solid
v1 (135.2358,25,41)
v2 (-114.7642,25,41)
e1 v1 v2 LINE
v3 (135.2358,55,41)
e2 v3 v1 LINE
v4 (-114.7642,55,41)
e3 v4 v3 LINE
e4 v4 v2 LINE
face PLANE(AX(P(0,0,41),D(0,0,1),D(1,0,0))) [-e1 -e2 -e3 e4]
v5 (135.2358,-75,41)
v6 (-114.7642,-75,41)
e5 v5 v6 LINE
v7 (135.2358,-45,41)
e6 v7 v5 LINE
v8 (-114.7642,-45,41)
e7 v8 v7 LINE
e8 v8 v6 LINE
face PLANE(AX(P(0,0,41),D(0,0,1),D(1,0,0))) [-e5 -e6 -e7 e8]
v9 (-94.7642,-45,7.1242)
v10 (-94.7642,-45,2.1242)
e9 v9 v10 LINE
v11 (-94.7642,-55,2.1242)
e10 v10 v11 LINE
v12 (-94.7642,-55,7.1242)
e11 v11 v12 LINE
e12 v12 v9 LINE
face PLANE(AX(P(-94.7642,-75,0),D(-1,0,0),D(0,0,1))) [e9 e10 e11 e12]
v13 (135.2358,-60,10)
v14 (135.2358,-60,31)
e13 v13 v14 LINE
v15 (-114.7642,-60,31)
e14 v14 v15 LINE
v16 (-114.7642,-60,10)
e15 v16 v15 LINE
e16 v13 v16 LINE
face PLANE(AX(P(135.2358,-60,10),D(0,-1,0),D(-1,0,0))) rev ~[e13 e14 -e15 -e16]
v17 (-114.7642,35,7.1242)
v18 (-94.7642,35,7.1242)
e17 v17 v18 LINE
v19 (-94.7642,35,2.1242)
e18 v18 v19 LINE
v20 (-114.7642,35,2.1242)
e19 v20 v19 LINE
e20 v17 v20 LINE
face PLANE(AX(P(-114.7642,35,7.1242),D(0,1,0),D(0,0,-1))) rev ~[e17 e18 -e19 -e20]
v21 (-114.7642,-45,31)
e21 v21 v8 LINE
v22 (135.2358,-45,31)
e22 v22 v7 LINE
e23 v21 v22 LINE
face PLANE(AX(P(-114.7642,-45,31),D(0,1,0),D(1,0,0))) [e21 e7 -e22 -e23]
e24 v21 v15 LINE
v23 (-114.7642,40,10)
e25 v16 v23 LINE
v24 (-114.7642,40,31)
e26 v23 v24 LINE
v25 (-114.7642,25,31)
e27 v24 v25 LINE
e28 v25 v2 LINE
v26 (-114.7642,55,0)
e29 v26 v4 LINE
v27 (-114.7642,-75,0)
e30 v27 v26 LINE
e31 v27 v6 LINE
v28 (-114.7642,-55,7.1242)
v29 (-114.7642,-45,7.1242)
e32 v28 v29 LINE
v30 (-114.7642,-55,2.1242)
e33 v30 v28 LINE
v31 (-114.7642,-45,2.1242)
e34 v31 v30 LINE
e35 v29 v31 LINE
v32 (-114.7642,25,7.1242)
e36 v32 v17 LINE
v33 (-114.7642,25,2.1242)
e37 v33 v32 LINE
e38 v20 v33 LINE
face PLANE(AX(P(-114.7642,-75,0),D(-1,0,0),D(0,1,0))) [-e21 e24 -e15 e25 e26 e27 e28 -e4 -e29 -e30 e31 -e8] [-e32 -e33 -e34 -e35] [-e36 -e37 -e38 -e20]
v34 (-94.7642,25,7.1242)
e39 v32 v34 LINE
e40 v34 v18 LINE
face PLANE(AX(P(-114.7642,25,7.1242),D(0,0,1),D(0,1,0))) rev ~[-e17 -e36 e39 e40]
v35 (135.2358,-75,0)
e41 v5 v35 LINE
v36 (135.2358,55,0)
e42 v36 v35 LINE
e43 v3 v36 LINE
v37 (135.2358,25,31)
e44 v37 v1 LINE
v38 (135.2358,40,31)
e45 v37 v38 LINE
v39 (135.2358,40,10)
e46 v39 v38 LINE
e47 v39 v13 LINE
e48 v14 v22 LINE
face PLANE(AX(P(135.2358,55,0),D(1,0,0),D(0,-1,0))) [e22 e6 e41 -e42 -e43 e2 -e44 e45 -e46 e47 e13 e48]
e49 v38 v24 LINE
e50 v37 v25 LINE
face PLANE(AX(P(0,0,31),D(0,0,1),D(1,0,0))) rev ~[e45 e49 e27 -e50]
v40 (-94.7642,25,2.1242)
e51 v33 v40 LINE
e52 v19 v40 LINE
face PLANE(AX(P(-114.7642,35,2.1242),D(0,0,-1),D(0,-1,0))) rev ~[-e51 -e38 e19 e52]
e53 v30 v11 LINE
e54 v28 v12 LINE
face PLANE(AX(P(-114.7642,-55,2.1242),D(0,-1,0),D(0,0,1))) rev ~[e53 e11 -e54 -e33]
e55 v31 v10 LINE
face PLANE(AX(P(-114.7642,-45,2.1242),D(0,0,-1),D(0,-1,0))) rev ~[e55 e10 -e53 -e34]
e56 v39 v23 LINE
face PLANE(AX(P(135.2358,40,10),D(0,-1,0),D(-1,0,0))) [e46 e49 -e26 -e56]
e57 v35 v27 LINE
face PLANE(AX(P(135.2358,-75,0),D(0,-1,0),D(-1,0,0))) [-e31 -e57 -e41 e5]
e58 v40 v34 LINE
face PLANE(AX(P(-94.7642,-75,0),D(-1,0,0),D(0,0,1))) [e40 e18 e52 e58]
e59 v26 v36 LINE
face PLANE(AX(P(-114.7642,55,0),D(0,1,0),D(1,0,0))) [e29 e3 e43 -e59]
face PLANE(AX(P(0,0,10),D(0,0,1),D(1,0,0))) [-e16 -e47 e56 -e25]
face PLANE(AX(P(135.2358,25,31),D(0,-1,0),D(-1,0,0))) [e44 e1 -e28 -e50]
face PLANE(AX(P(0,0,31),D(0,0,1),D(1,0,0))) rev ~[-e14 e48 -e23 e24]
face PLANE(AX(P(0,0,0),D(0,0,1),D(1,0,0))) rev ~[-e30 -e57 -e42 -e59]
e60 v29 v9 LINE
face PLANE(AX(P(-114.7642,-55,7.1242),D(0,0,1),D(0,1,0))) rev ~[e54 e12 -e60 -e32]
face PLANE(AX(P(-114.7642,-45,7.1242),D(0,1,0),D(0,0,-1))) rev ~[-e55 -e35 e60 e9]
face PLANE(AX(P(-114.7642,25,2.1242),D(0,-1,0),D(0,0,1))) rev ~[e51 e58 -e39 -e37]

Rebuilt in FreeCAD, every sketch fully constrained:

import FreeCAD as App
import Part
import Sketcher
from FreeCAD import Vector
Q = App.Units.Quantity

doc = App.newDocument("Part")
body = doc.addObject("PartDesign::Body", "Body")

sketch1 = doc.addObject("Sketcher::SketchObject", "Sketch")
body.addObject(sketch1)
sketch1.AttachmentSupport = (doc.XY_Plane, [""])
sketch1.MapMode = "FlatFace"
sketch1.addGeometry([
    Part.LineSegment(Vector(135.2358, 55, 0), Vector(-114.7642, 55, 0)),
    Part.LineSegment(Vector(-114.7642, 55, 0), Vector(-114.7642, -75, 0)),
    Part.LineSegment(Vector(-114.7642, -75, 0), Vector(135.2358, -75, 0)),
    Part.LineSegment(Vector(135.2358, -75, 0), Vector(135.2358, 55, 0)),
], False)
sketch1.addConstraint([
    Sketcher.Constraint("Coincident", 0, 2, 1, 1),
    Sketcher.Constraint("Coincident", 1, 2, 2, 1),
    Sketcher.Constraint("Coincident", 2, 2, 3, 1),
    Sketcher.Constraint("Coincident", 3, 2, 0, 1),
    Sketcher.Constraint("Horizontal", 0),
    Sketcher.Constraint("Vertical", 1),
    Sketcher.Constraint("Horizontal", 2),
    Sketcher.Constraint("Vertical", 3),
    Sketcher.Constraint("DistanceX", 0, 2, 0, 1, Q("250 mm")),
    Sketcher.Constraint("DistanceY", 1, 2, 1, 1, Q("130 mm")),
    Sketcher.Constraint("DistanceY", -1, 1, 0, 2, Q("55 mm")),
    Sketcher.Constraint("DistanceX", 0, 2, -1, 1, Q("114.7642 mm")),
])
pad1 = doc.addObject("PartDesign::Pad", "Pad")
body.addObject(pad1)
pad1.Profile = sketch1
pad1.Length = 10

sketch2 = doc.addObject("Sketcher::SketchObject", "Sketch001")
body.addObject(sketch2)
sketch2.AttachmentSupport = (doc.XY_Plane, [""])
sketch2.MapMode = "FlatFace"
sketch2.AttachmentOffset = App.Placement(Vector(0, 0, 10), App.Rotation())
sketch2.addGeometry([
    Part.LineSegment(Vector(135.2358, 40, 0), Vector(135.2358, 55, 0)),
    Part.LineSegment(Vector(135.2358, 55, 0), Vector(-114.7642, 55, 0)),
    Part.LineSegment(Vector(-114.7642, 55, 0), Vector(-114.7642, 40, 0)),
    Part.LineSegment(Vector(-114.7642, 40, 0), Vector(135.2358, 40, 0)),
    Part.LineSegment(Vector(135.2358, -75, 0), Vector(135.2358, -60, 0)),
    Part.LineSegment(Vector(135.2358, -60, 0), Vector(-114.7642, -60, 0)),
    Part.LineSegment(Vector(-114.7642, -60, 0), Vector(-114.7642, -75, 0)),
    Part.LineSegment(Vector(-114.7642, -75, 0), Vector(135.2358, -75, 0)),
], False)
sketch2.addConstraint([
    Sketcher.Constraint("Coincident", 0, 2, 1, 1),
    Sketcher.Constraint("Coincident", 1, 2, 2, 1),
    Sketcher.Constraint("Coincident", 2, 2, 3, 1),
    Sketcher.Constraint("Coincident", 3, 2, 0, 1),
    Sketcher.Constraint("Coincident", 4, 2, 5, 1),
    Sketcher.Constraint("Coincident", 5, 2, 6, 1),
    Sketcher.Constraint("Coincident", 6, 2, 7, 1),
    Sketcher.Constraint("Coincident", 7, 2, 4, 1),
    Sketcher.Constraint("Vertical", 0),
    Sketcher.Constraint("Horizontal", 1),
    Sketcher.Constraint("Vertical", 2),
    Sketcher.Constraint("Horizontal", 3),
    Sketcher.Constraint("Vertical", 4),
    Sketcher.Constraint("Horizontal", 5),
    Sketcher.Constraint("Vertical", 6),
    Sketcher.Constraint("Horizontal", 7),
    Sketcher.Constraint("Vertical", 3, 2, 4, 2),
    Sketcher.Constraint("Vertical", 2, 2, 5, 2),
    Sketcher.Constraint("Equal", 2, 4),
    Sketcher.Constraint("DistanceY", 0, 1, 0, 2, Q("15 mm")),
    Sketcher.Constraint("DistanceX", 1, 2, 1, 1, Q("250 mm")),
    Sketcher.Constraint("DistanceY", -1, 1, 0, 2, Q("55 mm")),
    Sketcher.Constraint("DistanceY", 4, 2, -1, 1, Q("60 mm")),
    Sketcher.Constraint("DistanceX", -1, 1, 0, 2, Q("135.2358 mm")),
])
pad2 = doc.addObject("PartDesign::Pad", "Pad001")
body.addObject(pad2)
pad2.Profile = sketch2
pad2.Length = 21

sketch3 = doc.addObject("Sketcher::SketchObject", "Sketch002")
body.addObject(sketch3)
sketch3.AttachmentSupport = (doc.XY_Plane, [""])
sketch3.MapMode = "FlatFace"
sketch3.AttachmentOffset = App.Placement(Vector(0, 0, 31), App.Rotation())
sketch3.addGeometry([
    Part.LineSegment(Vector(135.2358, 55, 0), Vector(-114.7642, 55, 0)),
    Part.LineSegment(Vector(-114.7642, 55, 0), Vector(-114.7642, 25, 0)),
    Part.LineSegment(Vector(-114.7642, 25, 0), Vector(135.2358, 25, 0)),
    Part.LineSegment(Vector(135.2358, 25, 0), Vector(135.2358, 55, 0)),
    Part.LineSegment(Vector(135.2358, -45, 0), Vector(-114.7642, -45, 0)),
    Part.LineSegment(Vector(-114.7642, -45, 0), Vector(-114.7642, -75, 0)),
    Part.LineSegment(Vector(-114.7642, -75, 0), Vector(135.2358, -75, 0)),
    Part.LineSegment(Vector(135.2358, -75, 0), Vector(135.2358, -45, 0)),
], False)
sketch3.addConstraint([
    Sketcher.Constraint("Coincident", 0, 2, 1, 1),
    Sketcher.Constraint("Coincident", 1, 2, 2, 1),
    Sketcher.Constraint("Coincident", 2, 2, 3, 1),
    Sketcher.Constraint("Coincident", 3, 2, 0, 1),
    Sketcher.Constraint("Coincident", 4, 2, 5, 1),
    Sketcher.Constraint("Coincident", 5, 2, 6, 1),
    Sketcher.Constraint("Coincident", 6, 2, 7, 1),
    Sketcher.Constraint("Coincident", 7, 2, 4, 1),
    Sketcher.Constraint("Horizontal", 0),
    Sketcher.Constraint("Vertical", 1),
    Sketcher.Constraint("Horizontal", 2),
    Sketcher.Constraint("Vertical", 3),
    Sketcher.Constraint("Horizontal", 4),
    Sketcher.Constraint("Vertical", 5),
    Sketcher.Constraint("Horizontal", 6),
    Sketcher.Constraint("Vertical", 7),
    Sketcher.Constraint("Vertical", 1, 2, 4, 2),
    Sketcher.Constraint("Vertical", 3, 2, 6, 2),
    Sketcher.Constraint("Equal", 3, 5),
    Sketcher.Constraint("DistanceY", 1, 2, 1, 1, Q("30 mm")),
    Sketcher.Constraint("DistanceX", 0, 2, 0, 1, Q("250 mm")),
    Sketcher.Constraint("DistanceY", -1, 1, 0, 2, Q("55 mm")),
    Sketcher.Constraint("DistanceY", 4, 2, -1, 1, Q("45 mm")),
    Sketcher.Constraint("DistanceX", 0, 2, -1, 1, Q("114.7642 mm")),
])
pad3 = doc.addObject("PartDesign::Pad", "Pad002")
body.addObject(pad3)
pad3.Profile = sketch3
pad3.Length = 10

sketch4 = doc.addObject("Sketcher::SketchObject", "Sketch003")
body.addObject(sketch4)
sketch4.AttachmentSupport = (doc.YZ_Plane, [""])
sketch4.MapMode = "FlatFace"
sketch4.AttachmentOffset = App.Placement(Vector(0, 0, -114.7642), App.Rotation())
sketch4.addGeometry([
    Part.LineSegment(Vector(25, 7.1242, 0), Vector(35, 7.1242, 0)),
    Part.LineSegment(Vector(35, 7.1242, 0), Vector(35, 2.1242, 0)),
    Part.LineSegment(Vector(35, 2.1242, 0), Vector(25, 2.1242, 0)),
    Part.LineSegment(Vector(25, 2.1242, 0), Vector(25, 7.1242, 0)),
    Part.LineSegment(Vector(-55, 7.1242, 0), Vector(-45, 7.1242, 0)),
    Part.LineSegment(Vector(-45, 7.1242, 0), Vector(-45, 2.1242, 0)),
    Part.LineSegment(Vector(-45, 2.1242, 0), Vector(-55, 2.1242, 0)),
    Part.LineSegment(Vector(-55, 2.1242, 0), Vector(-55, 7.1242, 0)),
], False)
sketch4.addConstraint([
    Sketcher.Constraint("Coincident", 0, 2, 1, 1),
    Sketcher.Constraint("Coincident", 1, 2, 2, 1),
    Sketcher.Constraint("Coincident", 2, 2, 3, 1),
    Sketcher.Constraint("Coincident", 3, 2, 0, 1),
    Sketcher.Constraint("Coincident", 4, 2, 5, 1),
    Sketcher.Constraint("Coincident", 5, 2, 6, 1),
    Sketcher.Constraint("Coincident", 6, 2, 7, 1),
    Sketcher.Constraint("Coincident", 7, 2, 4, 1),
    Sketcher.Constraint("Horizontal", 0),
    Sketcher.Constraint("Vertical", 1),
    Sketcher.Constraint("Horizontal", 2),
    Sketcher.Constraint("Vertical", 3),
    Sketcher.Constraint("Horizontal", 4),
    Sketcher.Constraint("Vertical", 5),
    Sketcher.Constraint("Horizontal", 6),
    Sketcher.Constraint("Vertical", 7),
    Sketcher.Constraint("Horizontal", 3, 2, 4, 2),
    Sketcher.Constraint("Horizontal", 2, 2, 5, 2),
    Sketcher.Constraint("Equal", 2, 4),
    Sketcher.Constraint("DistanceX", 0, 1, 0, 2, Q("10 mm")),
    Sketcher.Constraint("DistanceY", 1, 2, 1, 1, Q("5 mm")),
    Sketcher.Constraint("DistanceX", -1, 1, 0, 2, Q("35 mm")),
    Sketcher.Constraint("DistanceX", 4, 2, -1, 1, Q("45 mm")),
    Sketcher.Constraint("DistanceY", -1, 1, 0, 2, Q("7.1242 mm")),
])
pocket1 = doc.addObject("PartDesign::Pocket", "Pocket")
body.addObject(pocket1)
pocket1.Profile = sketch4
pocket1.Length = 20
pocket1.Reversed = True

doc.recompute()
